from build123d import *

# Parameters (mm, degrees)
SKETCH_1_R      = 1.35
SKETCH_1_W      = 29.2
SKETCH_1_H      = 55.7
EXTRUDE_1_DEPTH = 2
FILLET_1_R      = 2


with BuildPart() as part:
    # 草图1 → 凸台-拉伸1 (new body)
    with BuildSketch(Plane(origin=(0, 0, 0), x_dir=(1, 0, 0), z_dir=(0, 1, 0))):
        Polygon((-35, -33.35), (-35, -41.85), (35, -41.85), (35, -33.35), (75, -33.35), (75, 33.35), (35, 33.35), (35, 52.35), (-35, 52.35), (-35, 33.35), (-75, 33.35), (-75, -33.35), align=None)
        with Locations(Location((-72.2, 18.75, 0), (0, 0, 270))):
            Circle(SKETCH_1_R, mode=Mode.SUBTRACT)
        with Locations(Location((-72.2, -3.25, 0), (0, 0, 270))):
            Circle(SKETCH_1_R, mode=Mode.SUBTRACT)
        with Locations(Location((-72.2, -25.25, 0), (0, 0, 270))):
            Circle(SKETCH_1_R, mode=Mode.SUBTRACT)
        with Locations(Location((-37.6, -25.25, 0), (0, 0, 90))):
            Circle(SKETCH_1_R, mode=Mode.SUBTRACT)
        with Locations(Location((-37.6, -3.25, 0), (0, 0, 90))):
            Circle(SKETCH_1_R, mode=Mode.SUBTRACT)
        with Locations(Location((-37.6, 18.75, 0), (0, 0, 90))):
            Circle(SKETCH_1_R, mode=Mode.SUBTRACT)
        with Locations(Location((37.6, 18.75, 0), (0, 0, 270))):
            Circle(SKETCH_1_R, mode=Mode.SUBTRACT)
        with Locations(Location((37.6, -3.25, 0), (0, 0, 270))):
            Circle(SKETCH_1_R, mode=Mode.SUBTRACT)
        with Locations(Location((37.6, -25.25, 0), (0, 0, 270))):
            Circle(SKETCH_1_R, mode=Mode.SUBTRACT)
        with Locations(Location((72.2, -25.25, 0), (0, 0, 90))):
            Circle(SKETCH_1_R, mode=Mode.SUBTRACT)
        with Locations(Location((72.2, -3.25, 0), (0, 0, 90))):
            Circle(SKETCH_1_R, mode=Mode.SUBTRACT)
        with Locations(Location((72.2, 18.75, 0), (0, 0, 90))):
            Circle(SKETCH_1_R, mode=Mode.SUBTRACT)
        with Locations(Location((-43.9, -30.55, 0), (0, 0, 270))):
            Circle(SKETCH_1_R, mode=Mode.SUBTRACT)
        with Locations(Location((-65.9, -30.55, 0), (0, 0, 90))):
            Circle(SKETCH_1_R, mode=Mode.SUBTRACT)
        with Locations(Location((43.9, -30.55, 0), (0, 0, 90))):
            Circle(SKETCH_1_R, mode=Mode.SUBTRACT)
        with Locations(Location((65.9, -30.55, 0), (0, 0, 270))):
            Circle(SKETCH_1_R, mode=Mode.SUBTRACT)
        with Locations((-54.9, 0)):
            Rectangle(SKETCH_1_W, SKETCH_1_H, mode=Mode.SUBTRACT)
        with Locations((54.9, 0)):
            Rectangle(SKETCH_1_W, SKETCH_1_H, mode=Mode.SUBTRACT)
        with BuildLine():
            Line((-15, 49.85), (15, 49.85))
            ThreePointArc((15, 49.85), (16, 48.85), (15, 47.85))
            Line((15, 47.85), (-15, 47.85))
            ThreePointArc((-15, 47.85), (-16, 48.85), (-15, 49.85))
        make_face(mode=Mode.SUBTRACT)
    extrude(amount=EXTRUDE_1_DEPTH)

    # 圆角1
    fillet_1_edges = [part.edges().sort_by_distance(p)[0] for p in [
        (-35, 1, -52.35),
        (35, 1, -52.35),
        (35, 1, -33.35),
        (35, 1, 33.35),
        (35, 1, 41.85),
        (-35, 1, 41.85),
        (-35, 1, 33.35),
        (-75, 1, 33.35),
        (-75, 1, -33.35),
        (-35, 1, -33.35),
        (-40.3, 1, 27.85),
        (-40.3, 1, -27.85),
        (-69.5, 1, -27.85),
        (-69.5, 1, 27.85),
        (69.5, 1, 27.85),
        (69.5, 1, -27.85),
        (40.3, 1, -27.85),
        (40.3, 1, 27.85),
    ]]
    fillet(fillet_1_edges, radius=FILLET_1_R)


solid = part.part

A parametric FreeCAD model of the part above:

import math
import FreeCAD as App
import Part
import Sketcher

V = App.Vector
Q = App.Units.Quantity


def edges_at(feature, points):
    """Names of the edges that pass closest to the given points."""
    edges = feature.Shape.Edges
    near = lambda p: min(range(len(edges)), key=lambda i: edges[i].distToShape(Part.Vertex(*p))[0])
    return sorted({f"Edge{near(p) + 1}" for p in points})

doc = App.newDocument("Part")
body = doc.addObject("PartDesign::Body", "Body")

sketch1 = body.newObject("Sketcher::SketchObject", "Sketch")
sketch1.AttachmentSupport = (doc.getObject("XZ_Plane"), [""])
sketch1.MapMode = "FlatFace"
sketch1.addGeometry([
    Part.LineSegment(V(-35, 33.4, 0), V(-35, 41.9, 0)),
    Part.LineSegment(V(-35, 41.9, 0), V(35, 41.9, 0)),
    Part.LineSegment(V(35, 41.9, 0), V(35, 33.4, 0)),
    Part.LineSegment(V(35, 33.4, 0), V(75, 33.4, 0)),
    Part.LineSegment(V(75, 33.4, 0), V(75, -33.4, 0)),
    Part.LineSegment(V(75, -33.4, 0), V(35, -33.4, 0)),
    Part.LineSegment(V(35, -33.4, 0), V(35, -52.4, 0)),
    Part.LineSegment(V(35, -52.4, 0), V(-35, -52.4, 0)),
    Part.LineSegment(V(-35, -52.4, 0), V(-35, -33.4, 0)),
    Part.LineSegment(V(-35, -33.4, 0), V(-75, -33.4, 0)),
    Part.LineSegment(V(-75, -33.4, 0), V(-75, 33.4, 0)),
    Part.LineSegment(V(-75, 33.4, 0), V(-35, 33.4, 0)),
    Part.Circle(V(-65.9, 30.6, 0), V(0, 0, 1), 1.4),
    Part.Circle(V(-72.2, 25.2, 0), V(0, 0, 1), 1.4),
    Part.Circle(V(-43.9, 30.6, 0), V(0, 0, 1), 1.4),
    Part.Circle(V(-37.6, 25.2, 0), V(0, 0, 1), 1.4),
    Part.Circle(V(-72.2, 3.2, 0), V(0, 0, 1), 1.4),
    Part.Circle(V(-37.6, 3.2, 0), V(0, 0, 1), 1.4),
    Part.LineSegment(V(-40.3, 27.9, 0), V(-69.5, 27.9, 0)),
    Part.LineSegment(V(-69.5, 27.9, 0), V(-69.5, -27.9, 0)),
    Part.LineSegment(V(-69.5, -27.9, 0), V(-40.3, -27.9, 0)),
    Part.LineSegment(V(-40.3, -27.9, 0), V(-40.3, 27.9, 0)),
    Part.Circle(V(43.9, 30.6, 0), V(0, 0, 1), 1.4),
    Part.Circle(V(37.6, 25.2, 0), V(0, 0, 1), 1.4),
    Part.Circle(V(65.9, 30.6, 0), V(0, 0, 1), 1.4),
    Part.Circle(V(72.2, 25.2, 0), V(0, 0, 1), 1.4),
    Part.Circle(V(37.6, 3.2, 0), V(0, 0, 1), 1.4),
    Part.Circle(V(72.2, 3.2, 0), V(0, 0, 1), 1.4),
    Part.LineSegment(V(69.5, 27.9, 0), V(40.3, 27.9, 0)),
    Part.LineSegment(V(40.3, 27.9, 0), V(40.3, -27.9, 0)),
    Part.LineSegment(V(40.3, -27.9, 0), V(69.5, -27.9, 0)),
    Part.LineSegment(V(69.5, -27.9, 0), V(69.5, 27.9, 0)),
    Part.Circle(V(-72.2, -18.8, 0), V(0, 0, 1), 1.4),
    Part.Circle(V(-37.6, -18.8, 0), V(0, 0, 1), 1.4),
    Part.Circle(V(37.6, -18.8, 0), V(0, 0, 1), 1.4),
    Part.Circle(V(72.2, -18.8, 0), V(0, 0, 1), 1.4),
    Part.ArcOfCircle(Part.Circle(V(-15, -48.9, 0), V(0, 0, 1), 1), math.radians(90), math.radians(270)),
    Part.LineSegment(V(-15, -49.9, 0), V(15, -49.9, 0)),
    Part.ArcOfCircle(Part.Circle(V(15, -48.9, 0), V(0, 0, 1), 1), math.radians(-90), math.radians(90)),
    Part.LineSegment(V(15, -47.9, 0), V(-15, -47.9, 0)),
], False)
sketch1.addConstraint([
    Sketcher.Constraint("Coincident", 0, 2, 1, 1),
    Sketcher.Constraint("Coincident", 1, 2, 2, 1),
    Sketcher.Constraint("Coincident", 2, 2, 3, 1),
    Sketcher.Constraint("Coincident", 3, 2, 4, 1),
    Sketcher.Constraint("Coincident", 4, 2, 5, 1),
    Sketcher.Constraint("Coincident", 5, 2, 6, 1),
    Sketcher.Constraint("Coincident", 6, 2, 7, 1),
    Sketcher.Constraint("Coincident", 7, 2, 8, 1),
    Sketcher.Constraint("Coincident", 8, 2, 9, 1),
    Sketcher.Constraint("Coincident", 9, 2, 10, 1),
    Sketcher.Constraint("Coincident", 10, 2, 11, 1),
    Sketcher.Constraint("Coincident", 11, 2, 0, 1),
    Sketcher.Constraint("Coincident", 18, 2, 19, 1),
    Sketcher.Constraint("Coincident", 19, 2, 20, 1),
    Sketcher.Constraint("Coincident", 20, 2, 21, 1),
    Sketcher.Constraint("Coincident", 21, 2, 18, 1),
    Sketcher.Constraint("Coincident", 28, 2, 29, 1),
    Sketcher.Constraint("Coincident", 29, 2, 30, 1),
    Sketcher.Constraint("Coincident", 30, 2, 31, 1),
    Sketcher.Constraint("Coincident", 31, 2, 28, 1),
    Sketcher.Constraint("Tangent", 36, 2, 37, 1),
    Sketcher.Constraint("Tangent", 37, 2, 38, 1),
    Sketcher.Constraint("Tangent", 38, 2, 39, 1),
    Sketcher.Constraint("Tangent", 39, 2, 36, 1),
    Sketcher.Constraint("Vertical", 0),
    Sketcher.Constraint("Horizontal", 1),
    Sketcher.Constraint("Vertical", 2),
    Sketcher.Constraint("Horizontal", 3),
    Sketcher.Constraint("Vertical", 4),
    Sketcher.Constraint("Horizontal", 5),
    Sketcher.Constraint("Vertical", 6),
    Sketcher.Constraint("Horizontal", 7),
    Sketcher.Constraint("Vertical", 8),
    Sketcher.Constraint("Horizontal", 9),
    Sketcher.Constraint("Vertical", 10),
    Sketcher.Constraint("Horizontal", 11),
    Sketcher.Constraint("Horizontal", 18),
    Sketcher.Constraint("Vertical", 19),
    Sketcher.Constraint("Horizontal", 20),
    Sketcher.Constraint("Vertical", 21),
    Sketcher.Constraint("Horizontal", 28),
    Sketcher.Constraint("Vertical", 29),
    Sketcher.Constraint("Horizontal", 30),
    Sketcher.Constraint("Vertical", 31),
    Sketcher.Constraint("Horizontal", 37),
    Sketcher.Constraint("Horizontal", 39),
    Sketcher.Constraint("Equal", 12, 13),
    Sketcher.Constraint("Equal", 13, 14),
    Sketcher.Constraint("Equal", 14, 15),
    Sketcher.Constraint("Equal", 15, 16),
    Sketcher.Constraint("Equal", 16, 17),
    Sketcher.Constraint("Equal", 17, 22),
    Sketcher.Constraint("Equal", 22, 23),
    Sketcher.Constraint("Equal", 23, 24),
    Sketcher.Constraint("Equal", 24, 25),
    Sketcher.Constraint("Equal", 25, 26),
    Sketcher.Constraint("Equal", 26, 27),
    Sketcher.Constraint("Equal", 27, 32),
    Sketcher.Constraint("Equal", 32, 33),
    Sketcher.Constraint("Equal", 33, 34),
    Sketcher.Constraint("Equal", 34, 35),
    Sketcher.Constraint("Symmetric", 2, 2, 8, 2, -1, 1),
    Sketcher.Constraint("Symmetric", 4, 2, 10, 2, -1, 1),
    Sketcher.Constraint("Symmetric", 20, 2, 28, 2, -1, 1),
    Sketcher.Constraint("Symmetric", 18, 2, 30, 2, -1, 1),
    Sketcher.Constraint("Symmetric", 14, 3, 22, 3, -2),
    Sketcher.Constraint("Symmetric", 15, 3, 23, 3, -2),
    Sketcher.Constraint("Symmetric", 12, 3, 24, 3, -2),
    Sketcher.Constraint("Symmetric", 13, 3, 25, 3, -2),
    Sketcher.Constraint("Symmetric", 17, 3, 26, 3, -2),
    Sketcher.Constraint("Symmetric", 16, 3, 27, 3, -2),
    Sketcher.Constraint("Symmetric", 33, 3, 34, 3, -2),
    Sketcher.Constraint("Symmetric", 32, 3, 35, 3, -2),
    Sketcher.Constraint("Symmetric", 5, 2, 8, 2, -2),
    Sketcher.Constraint("Horizontal", 12, 3, 14, 3),
    Sketcher.Constraint("Horizontal", 13, 3, 15, 3),
    Sketcher.Constraint("Horizontal", 16, 3, 17, 3),
    Sketcher.Constraint("Horizontal", 32, 3, 33, 3),
    Sketcher.Constraint("Horizontal", 21, 2, 28, 2),
    Sketcher.Constraint("Vertical", 13, 3, 16, 3),
    Sketcher.Constraint("Vertical", 15, 3, 17, 3),
    Sketcher.Constraint("Vertical", 16, 3, 32, 3),
    Sketcher.Constraint("Vertical", 17, 3, 33, 3),
    Sketcher.Constraint("Vertical", 0, 2, 7, 2),
    Sketcher.Constraint("Radius", 36, Q("1 mm")),
    Sketcher.Constraint("Diameter", 12, Q("2.7 mm")),
    Sketcher.Constraint("DistanceX", 1, 1, 1, 2, Q("70 mm")),
    Sketcher.Constraint("DistanceX", 3, 1, 3, 2, Q("40 mm")),
    Sketcher.Constraint("DistanceX", 37, 1, 37, 2, Q("30 mm")),
    Sketcher.Constraint("DistanceY", 6, 2, 6, 1, Q("19 mm")),
    Sketcher.Constraint("DistanceX", 18, 2, 18, 1, Q("29.2 mm")),
    Sketcher.Constraint("DistanceY", 0, 1, 0, 2, Q("8.5 mm")),
    Sketcher.Constraint("DistanceY", 4, 2, 4, 1, Q("66.7 mm")),
    Sketcher.Constraint("DistanceY", 19, 2, 19, 1, Q("55.7 mm")),
    Sketcher.Constraint("DistanceX", 36, 3, -1, 1, Q("15 mm")),
    Sketcher.Constraint("DistanceX", 12, 3, 14, 3, Q("22 mm")),
    Sketcher.Constraint("DistanceY", 16, 3, 13, 3, Q("22 mm")),
    Sketcher.Constraint("DistanceY", 32, 3, 16, 3, Q("22 mm")),
    Sketcher.Constraint("DistanceY", 38, 3, 29, 2, Q("21 mm")),
    Sketcher.Constraint("DistanceX", 12, 3, -1, 1, Q("65.9 mm")),
    Sketcher.Constraint("DistanceX", 13, 3, -1, 1, Q("72.2 mm")),
    Sketcher.Constraint("DistanceX", 15, 3, -1, 1, Q("37.6 mm")),
    Sketcher.Constraint("DistanceX", 18, 2, -1, 1, Q("69.5 mm")),
    Sketcher.Constraint("DistanceY", 13, 3, 12, 3, Q("5.3 mm")),
    Sketcher.Constraint("DistanceY", 36, 3, 33, 3, Q("30.1 mm")),
])
pad1 = body.newObject("PartDesign::Pad", "Pad")
pad1.Profile = sketch1
pad1.Length = 2
pad1.Reversed = True
doc.recompute()

fillet = body.newObject("PartDesign::Fillet", "Fillet")
fillet.Base = (pad1, edges_at(pad1, [
    (-35, 1, -52.35),
    (35, 1, -52.35),
    (35, 1, -33.35),
    (35, 1, 33.35),
    (35, 1, 41.85),
    (-35, 1, 41.85),
    (-35, 1, 33.35),
    (-75, 1, 33.35),
    (-75, 1, -33.35),
    (-35, 1, -33.35),
    (-40.3, 1, 27.85),
    (-40.3, 1, -27.85),
    (-69.5, 1, -27.85),
    (-69.5, 1, 27.85),
    (69.5, 1, 27.85),
    (69.5, 1, -27.85),
    (40.3, 1, -27.85),
    (40.3, 1, 27.85),
]))
fillet.Radius = 2

doc.recompute()
